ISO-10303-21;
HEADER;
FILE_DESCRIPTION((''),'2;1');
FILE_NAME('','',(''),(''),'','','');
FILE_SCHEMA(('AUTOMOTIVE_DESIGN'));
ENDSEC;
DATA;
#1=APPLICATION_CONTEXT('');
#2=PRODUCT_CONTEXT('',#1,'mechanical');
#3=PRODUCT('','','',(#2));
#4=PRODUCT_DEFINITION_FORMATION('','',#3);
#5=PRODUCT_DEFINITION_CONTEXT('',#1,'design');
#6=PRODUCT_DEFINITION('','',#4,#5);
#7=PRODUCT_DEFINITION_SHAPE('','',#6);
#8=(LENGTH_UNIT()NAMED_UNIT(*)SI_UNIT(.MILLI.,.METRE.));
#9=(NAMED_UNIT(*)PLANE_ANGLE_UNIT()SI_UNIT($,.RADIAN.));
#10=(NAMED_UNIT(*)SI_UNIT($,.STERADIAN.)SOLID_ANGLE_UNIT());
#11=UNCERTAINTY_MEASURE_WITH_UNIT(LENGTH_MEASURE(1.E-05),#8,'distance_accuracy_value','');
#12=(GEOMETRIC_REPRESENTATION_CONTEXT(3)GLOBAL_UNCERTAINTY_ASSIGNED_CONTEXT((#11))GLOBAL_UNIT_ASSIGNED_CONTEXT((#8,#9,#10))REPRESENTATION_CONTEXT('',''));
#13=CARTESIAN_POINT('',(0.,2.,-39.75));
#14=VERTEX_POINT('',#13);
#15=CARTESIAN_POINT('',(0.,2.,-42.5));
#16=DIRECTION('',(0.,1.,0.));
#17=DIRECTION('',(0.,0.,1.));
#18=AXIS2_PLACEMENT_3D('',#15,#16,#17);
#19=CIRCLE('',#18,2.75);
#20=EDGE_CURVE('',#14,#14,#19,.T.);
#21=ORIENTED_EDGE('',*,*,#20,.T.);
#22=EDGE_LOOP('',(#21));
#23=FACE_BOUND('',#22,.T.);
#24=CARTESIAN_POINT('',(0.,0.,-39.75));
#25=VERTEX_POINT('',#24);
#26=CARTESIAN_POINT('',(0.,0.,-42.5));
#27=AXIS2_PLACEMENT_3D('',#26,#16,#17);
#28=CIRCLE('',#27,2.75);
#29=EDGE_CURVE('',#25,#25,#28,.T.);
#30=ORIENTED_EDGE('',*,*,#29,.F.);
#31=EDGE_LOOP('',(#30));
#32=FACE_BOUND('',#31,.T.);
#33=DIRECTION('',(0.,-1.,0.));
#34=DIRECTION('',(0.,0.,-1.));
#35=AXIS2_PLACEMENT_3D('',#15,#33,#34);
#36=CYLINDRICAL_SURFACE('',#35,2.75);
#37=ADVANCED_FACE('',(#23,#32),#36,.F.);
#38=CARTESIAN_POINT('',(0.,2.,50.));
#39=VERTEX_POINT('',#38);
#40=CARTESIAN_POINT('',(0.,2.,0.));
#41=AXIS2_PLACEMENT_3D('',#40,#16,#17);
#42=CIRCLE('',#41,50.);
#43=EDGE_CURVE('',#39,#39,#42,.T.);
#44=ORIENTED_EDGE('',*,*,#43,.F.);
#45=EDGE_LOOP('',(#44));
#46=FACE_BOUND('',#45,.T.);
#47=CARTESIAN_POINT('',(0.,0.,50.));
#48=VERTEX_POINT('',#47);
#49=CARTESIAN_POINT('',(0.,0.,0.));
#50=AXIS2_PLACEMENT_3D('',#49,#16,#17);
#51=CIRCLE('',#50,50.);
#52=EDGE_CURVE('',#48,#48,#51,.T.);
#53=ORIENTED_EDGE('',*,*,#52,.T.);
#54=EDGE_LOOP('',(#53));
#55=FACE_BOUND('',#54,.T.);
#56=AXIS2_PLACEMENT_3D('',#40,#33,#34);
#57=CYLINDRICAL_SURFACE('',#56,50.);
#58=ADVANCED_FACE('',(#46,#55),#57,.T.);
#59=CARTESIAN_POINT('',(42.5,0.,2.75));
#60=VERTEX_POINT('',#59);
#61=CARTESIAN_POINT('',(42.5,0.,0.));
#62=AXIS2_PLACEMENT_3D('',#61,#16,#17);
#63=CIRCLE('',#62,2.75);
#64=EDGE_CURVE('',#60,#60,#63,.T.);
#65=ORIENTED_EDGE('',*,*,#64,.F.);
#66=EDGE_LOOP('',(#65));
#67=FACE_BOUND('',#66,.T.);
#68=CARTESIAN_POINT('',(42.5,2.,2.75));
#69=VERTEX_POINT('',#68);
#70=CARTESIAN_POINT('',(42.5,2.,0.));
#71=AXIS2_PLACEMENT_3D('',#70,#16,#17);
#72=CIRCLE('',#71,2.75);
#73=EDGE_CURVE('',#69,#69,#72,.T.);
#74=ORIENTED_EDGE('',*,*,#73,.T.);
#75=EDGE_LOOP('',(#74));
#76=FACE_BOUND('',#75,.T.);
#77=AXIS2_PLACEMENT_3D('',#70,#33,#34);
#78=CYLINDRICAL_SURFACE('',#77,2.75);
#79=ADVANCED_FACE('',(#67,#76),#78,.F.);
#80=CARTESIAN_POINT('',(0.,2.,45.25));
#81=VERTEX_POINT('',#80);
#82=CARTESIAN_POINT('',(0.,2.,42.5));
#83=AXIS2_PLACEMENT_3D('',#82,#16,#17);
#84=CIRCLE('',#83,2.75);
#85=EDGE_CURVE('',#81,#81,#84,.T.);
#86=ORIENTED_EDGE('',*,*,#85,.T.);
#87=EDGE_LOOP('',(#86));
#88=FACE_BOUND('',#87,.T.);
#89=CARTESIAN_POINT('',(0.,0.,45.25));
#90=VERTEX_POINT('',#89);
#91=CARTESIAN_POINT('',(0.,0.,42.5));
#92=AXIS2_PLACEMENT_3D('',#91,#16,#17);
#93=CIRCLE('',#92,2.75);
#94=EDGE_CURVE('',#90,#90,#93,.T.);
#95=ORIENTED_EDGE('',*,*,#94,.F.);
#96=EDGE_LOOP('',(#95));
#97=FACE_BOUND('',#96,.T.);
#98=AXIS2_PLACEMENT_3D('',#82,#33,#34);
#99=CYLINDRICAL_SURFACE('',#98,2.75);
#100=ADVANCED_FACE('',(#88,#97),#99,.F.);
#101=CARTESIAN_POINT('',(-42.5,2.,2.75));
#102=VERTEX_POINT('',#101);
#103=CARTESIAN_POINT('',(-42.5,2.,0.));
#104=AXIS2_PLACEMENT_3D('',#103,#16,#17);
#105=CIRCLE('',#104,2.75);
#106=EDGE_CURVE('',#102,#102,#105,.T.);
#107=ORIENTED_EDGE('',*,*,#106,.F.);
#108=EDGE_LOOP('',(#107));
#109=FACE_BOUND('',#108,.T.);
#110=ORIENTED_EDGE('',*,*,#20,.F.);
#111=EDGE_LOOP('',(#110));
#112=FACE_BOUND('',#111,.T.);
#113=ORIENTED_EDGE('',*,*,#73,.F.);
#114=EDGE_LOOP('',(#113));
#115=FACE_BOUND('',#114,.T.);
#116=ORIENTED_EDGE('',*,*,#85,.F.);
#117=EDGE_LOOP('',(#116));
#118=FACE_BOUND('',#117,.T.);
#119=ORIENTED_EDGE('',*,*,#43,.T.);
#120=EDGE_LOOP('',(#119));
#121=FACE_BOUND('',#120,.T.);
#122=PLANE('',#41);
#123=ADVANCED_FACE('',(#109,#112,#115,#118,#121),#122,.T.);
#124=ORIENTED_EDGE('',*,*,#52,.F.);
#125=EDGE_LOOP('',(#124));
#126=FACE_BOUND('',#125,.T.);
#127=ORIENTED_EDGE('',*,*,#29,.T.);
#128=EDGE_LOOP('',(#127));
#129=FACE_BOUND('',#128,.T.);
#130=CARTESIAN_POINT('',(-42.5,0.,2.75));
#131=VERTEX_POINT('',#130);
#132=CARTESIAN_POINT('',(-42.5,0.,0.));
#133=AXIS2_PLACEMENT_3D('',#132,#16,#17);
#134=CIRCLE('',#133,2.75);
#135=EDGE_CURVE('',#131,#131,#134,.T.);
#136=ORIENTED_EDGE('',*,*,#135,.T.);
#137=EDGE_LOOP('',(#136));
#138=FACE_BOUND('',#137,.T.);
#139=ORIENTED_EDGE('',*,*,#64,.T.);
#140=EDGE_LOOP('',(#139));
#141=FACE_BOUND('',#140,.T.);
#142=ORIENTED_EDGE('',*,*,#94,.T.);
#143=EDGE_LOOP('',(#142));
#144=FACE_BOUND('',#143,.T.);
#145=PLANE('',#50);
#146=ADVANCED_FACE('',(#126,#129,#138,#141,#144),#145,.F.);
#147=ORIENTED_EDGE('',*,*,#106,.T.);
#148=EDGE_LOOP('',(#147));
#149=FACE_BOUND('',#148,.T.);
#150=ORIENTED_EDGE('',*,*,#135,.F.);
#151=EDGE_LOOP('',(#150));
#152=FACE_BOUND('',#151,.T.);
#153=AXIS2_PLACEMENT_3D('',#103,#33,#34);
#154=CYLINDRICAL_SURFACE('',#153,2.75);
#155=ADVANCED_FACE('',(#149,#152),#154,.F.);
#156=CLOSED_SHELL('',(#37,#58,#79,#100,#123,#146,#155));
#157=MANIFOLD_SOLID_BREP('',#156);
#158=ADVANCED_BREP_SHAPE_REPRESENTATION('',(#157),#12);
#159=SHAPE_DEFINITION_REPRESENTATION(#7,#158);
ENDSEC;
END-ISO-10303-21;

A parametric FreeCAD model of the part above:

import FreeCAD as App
import Part
import Sketcher

V = App.Vector
Q = App.Units.Quantity

doc = App.newDocument("Part")
params = doc.addObject("Spreadsheet::Sheet", "Params")
for row, (alias, value) in enumerate([
    ("sketch1_diameter", "100 mm"),
    ("sketch1_diameter2", "5.5 mm"),
    ("pad1_length", "2 mm"),
], start=1):
    params.set(f"A{row}", alias)
    params.set(f"B{row}", "=" + value)
    params.setAlias(f"B{row}", alias)

body = doc.addObject("PartDesign::Body", "Body")

# Sketch on XZ plane
sketch1 = doc.addObject("Sketcher::SketchObject", "Sketch")
body.addObject(sketch1)
sketch1.AttachmentSupport = (doc.XZ_Plane, [""])
sketch1.MapMode = "FlatFace"
sketch1.addGeometry([
    Part.Circle(V(0, 0, 0), V(0, 0, 1), 50),  # 0
    Part.Circle(V(0, -42.5, 0), V(0, 0, 1), 2.75),  # 1
    Part.Circle(V(-42.5, 0, 0), V(0, 0, 1), 2.75),  # 2
    Part.Circle(V(42.5, 0, 0), V(0, 0, 1), 2.75),  # 3
    Part.Circle(V(0, 42.5, 0), V(0, 0, 1), 2.75),  # 4
], False)
sketch1.addConstraint([
    Sketcher.Constraint("Coincident", 0, 3, -1, 1),
    Sketcher.Constraint("Equal", 1, 2),
    Sketcher.Constraint("Equal", 2, 3),
    Sketcher.Constraint("Equal", 3, 4),
    Sketcher.Constraint("Symmetric", 2, 3, 3, 3, -1, 1),
    Sketcher.Constraint("Symmetric", 1, 3, 4, 3, -1, 1),
    Sketcher.Constraint("PointOnObject", 1, 3, -2),
    Sketcher.Constraint("PointOnObject", 2, 3, -1),
    Sketcher.Constraint("Diameter", 0, Q("100 mm")),
    Sketcher.Constraint("Diameter", 1, Q("5.5 mm")),
    Sketcher.Constraint("DistanceX", 2, 3, 3, 3, Q("85 mm")),
    Sketcher.Constraint("DistanceY", 1, 3, 4, 3, Q("85 mm")),
])
sketch1.setExpression("Constraints[8]", "Params.sketch1_diameter")
sketch1.setExpression("Constraints[9]", "Params.sketch1_diameter2")
pad1 = doc.addObject("PartDesign::Pad", "Pad")
body.addObject(pad1)
pad1.Profile = sketch1
pad1.setExpression("Length", "Params.pad1_length")
pad1.Reversed = True

doc.recompute()
